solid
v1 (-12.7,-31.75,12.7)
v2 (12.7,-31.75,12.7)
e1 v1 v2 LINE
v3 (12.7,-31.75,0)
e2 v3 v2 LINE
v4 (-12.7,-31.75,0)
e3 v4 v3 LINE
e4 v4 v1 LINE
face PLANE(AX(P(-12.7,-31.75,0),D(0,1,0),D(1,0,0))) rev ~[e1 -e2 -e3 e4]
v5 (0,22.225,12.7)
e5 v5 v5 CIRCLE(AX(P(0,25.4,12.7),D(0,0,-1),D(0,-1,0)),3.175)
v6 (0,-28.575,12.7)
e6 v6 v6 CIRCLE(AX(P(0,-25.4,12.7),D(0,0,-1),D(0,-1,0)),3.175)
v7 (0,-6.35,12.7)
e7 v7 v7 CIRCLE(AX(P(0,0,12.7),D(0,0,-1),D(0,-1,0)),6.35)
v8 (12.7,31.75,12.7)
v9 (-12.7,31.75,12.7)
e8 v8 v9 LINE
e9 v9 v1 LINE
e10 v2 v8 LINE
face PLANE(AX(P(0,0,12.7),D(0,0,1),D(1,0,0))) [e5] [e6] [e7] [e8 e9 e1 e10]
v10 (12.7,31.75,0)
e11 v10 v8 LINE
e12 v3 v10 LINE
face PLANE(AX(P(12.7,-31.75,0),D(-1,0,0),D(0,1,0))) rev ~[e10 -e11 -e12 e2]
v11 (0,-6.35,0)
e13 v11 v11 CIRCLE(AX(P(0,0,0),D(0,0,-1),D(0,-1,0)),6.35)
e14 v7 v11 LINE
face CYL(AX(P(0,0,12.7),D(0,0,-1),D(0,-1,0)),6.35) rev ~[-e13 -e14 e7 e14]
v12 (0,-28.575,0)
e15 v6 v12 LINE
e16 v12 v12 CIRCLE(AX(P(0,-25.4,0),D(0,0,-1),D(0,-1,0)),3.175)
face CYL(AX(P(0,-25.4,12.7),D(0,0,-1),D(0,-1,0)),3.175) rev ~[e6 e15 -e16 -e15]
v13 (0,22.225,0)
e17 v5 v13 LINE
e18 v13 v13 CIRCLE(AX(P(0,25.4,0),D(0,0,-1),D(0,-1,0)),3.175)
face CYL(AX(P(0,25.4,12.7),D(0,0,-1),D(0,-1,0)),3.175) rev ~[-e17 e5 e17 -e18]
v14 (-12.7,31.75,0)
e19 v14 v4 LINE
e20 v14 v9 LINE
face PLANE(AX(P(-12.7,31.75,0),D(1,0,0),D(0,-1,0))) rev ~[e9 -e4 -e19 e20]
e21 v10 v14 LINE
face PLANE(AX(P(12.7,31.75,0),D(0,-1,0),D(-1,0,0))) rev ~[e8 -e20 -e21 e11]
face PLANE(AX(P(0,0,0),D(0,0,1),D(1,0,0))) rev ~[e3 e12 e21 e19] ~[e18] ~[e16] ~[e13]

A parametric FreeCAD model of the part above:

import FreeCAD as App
import Part
import Sketcher
Q = App.Units.Quantity


def add_polygon(sketch, points):
    """Adds a closed chain of lines whose ends are joined by coincident constraints."""
    first, n = sketch.GeometryCount, len(points)
    for a, b in zip(points, points[1:] + points[:1]):
        sketch.addGeometry(Part.LineSegment(App.Vector(*a, 0), App.Vector(*b, 0)), False)
    for i in range(n):
        sketch.addConstraint(Sketcher.Constraint("Coincident", first + i, 2, first + (i + 1) % n, 1))

doc = App.newDocument("Part")
body = doc.addObject("PartDesign::Body", "Body")

sketch1 = body.newObject("Sketcher::SketchObject", "Sketch")
sketch1.AttachmentSupport = (doc.getObject("XY_Plane"), [""])
sketch1.MapMode = "FlatFace"
add_polygon(sketch1, [(-13, 32), (-13, -32), (13, -32), (13, 32)])
sketch1.addConstraint(Sketcher.Constraint("Vertical", 0))
sketch1.addConstraint(Sketcher.Constraint("Horizontal", 1))
sketch1.addConstraint(Sketcher.Constraint("Vertical", 2))
sketch1.addConstraint(Sketcher.Constraint("Horizontal", 3))
sketch1.addConstraint(Sketcher.Constraint("Symmetric", 0, 2, 2, 2, -1, 1))
sketch1.addConstraint(Sketcher.Constraint("DistanceX", 1, 1, 1, 2, Q("1 in")))
sketch1.addConstraint(Sketcher.Constraint("DistanceY", 0, 2, 0, 1, Q("2.5 in")))
pad1 = body.newObject("PartDesign::Pad", "Pad")
pad1.Profile = sketch1
pad1.Length = Q("0.5 in")

sketch2 = body.newObject("Sketcher::SketchObject", "Sketch001")
sketch2.AttachmentSupport = (doc.getObject("XY_Plane"), [""])
sketch2.MapMode = "FlatFace"
sketch2.AttachmentOffset = App.Placement(App.Vector(0, 0, 0.5 * 25.4), App.Rotation())
sketch2.addGeometry(Part.Circle(App.Vector(0, 25.4, 0), App.Vector(0, 0, 1), 3.2), False)
sketch2.addGeometry(Part.Circle(App.Vector(0, -25.4, 0), App.Vector(0, 0, 1), 3.2), False)
sketch2.addConstraint(Sketcher.Constraint("Equal", 0, 1))
sketch2.addConstraint(Sketcher.Constraint("Symmetric", 0, 3, 1, 3, -1, 1))
sketch2.addConstraint(Sketcher.Constraint("PointOnObject", 0, 3, -2))
sketch2.addConstraint(Sketcher.Constraint("Diameter", 0, Q("0.25 in")))
sketch2.addConstraint(Sketcher.Constraint("DistanceY", -1, 1, 0, 3, Q("1 in")))
doc.recompute()
hole = body.newObject("PartDesign::Hole", "Hole")
hole.Profile = sketch2
hole.ThreadType = "None"
hole.Diameter = Q("0.25 in")
hole.DepthType = "ThroughAll"

sketch3 = body.newObject("Sketcher::SketchObject", "Sketch002")
sketch3.AttachmentSupport = (doc.getObject("XY_Plane"), [""])
sketch3.MapMode = "FlatFace"
sketch3.AttachmentOffset = App.Placement(App.Vector(0, 0, 0.5 * 25.4), App.Rotation())
sketch3.addGeometry(Part.Circle(App.Vector(0, 0, 0), App.Vector(0, 0, 1), 6), False)
sketch3.addConstraint(Sketcher.Constraint("Coincident", 0, 3, -1, 1))
sketch3.addConstraint(Sketcher.Constraint("Diameter", 0, Q("0.5 in")))
doc.recompute()
hole2 = body.newObject("PartDesign::Hole", "Hole001")
hole2.Profile = sketch3
hole2.ThreadType = "None"
hole2.Diameter = Q("0.5 in")
hole2.DepthType = "ThroughAll"

doc.recompute()
